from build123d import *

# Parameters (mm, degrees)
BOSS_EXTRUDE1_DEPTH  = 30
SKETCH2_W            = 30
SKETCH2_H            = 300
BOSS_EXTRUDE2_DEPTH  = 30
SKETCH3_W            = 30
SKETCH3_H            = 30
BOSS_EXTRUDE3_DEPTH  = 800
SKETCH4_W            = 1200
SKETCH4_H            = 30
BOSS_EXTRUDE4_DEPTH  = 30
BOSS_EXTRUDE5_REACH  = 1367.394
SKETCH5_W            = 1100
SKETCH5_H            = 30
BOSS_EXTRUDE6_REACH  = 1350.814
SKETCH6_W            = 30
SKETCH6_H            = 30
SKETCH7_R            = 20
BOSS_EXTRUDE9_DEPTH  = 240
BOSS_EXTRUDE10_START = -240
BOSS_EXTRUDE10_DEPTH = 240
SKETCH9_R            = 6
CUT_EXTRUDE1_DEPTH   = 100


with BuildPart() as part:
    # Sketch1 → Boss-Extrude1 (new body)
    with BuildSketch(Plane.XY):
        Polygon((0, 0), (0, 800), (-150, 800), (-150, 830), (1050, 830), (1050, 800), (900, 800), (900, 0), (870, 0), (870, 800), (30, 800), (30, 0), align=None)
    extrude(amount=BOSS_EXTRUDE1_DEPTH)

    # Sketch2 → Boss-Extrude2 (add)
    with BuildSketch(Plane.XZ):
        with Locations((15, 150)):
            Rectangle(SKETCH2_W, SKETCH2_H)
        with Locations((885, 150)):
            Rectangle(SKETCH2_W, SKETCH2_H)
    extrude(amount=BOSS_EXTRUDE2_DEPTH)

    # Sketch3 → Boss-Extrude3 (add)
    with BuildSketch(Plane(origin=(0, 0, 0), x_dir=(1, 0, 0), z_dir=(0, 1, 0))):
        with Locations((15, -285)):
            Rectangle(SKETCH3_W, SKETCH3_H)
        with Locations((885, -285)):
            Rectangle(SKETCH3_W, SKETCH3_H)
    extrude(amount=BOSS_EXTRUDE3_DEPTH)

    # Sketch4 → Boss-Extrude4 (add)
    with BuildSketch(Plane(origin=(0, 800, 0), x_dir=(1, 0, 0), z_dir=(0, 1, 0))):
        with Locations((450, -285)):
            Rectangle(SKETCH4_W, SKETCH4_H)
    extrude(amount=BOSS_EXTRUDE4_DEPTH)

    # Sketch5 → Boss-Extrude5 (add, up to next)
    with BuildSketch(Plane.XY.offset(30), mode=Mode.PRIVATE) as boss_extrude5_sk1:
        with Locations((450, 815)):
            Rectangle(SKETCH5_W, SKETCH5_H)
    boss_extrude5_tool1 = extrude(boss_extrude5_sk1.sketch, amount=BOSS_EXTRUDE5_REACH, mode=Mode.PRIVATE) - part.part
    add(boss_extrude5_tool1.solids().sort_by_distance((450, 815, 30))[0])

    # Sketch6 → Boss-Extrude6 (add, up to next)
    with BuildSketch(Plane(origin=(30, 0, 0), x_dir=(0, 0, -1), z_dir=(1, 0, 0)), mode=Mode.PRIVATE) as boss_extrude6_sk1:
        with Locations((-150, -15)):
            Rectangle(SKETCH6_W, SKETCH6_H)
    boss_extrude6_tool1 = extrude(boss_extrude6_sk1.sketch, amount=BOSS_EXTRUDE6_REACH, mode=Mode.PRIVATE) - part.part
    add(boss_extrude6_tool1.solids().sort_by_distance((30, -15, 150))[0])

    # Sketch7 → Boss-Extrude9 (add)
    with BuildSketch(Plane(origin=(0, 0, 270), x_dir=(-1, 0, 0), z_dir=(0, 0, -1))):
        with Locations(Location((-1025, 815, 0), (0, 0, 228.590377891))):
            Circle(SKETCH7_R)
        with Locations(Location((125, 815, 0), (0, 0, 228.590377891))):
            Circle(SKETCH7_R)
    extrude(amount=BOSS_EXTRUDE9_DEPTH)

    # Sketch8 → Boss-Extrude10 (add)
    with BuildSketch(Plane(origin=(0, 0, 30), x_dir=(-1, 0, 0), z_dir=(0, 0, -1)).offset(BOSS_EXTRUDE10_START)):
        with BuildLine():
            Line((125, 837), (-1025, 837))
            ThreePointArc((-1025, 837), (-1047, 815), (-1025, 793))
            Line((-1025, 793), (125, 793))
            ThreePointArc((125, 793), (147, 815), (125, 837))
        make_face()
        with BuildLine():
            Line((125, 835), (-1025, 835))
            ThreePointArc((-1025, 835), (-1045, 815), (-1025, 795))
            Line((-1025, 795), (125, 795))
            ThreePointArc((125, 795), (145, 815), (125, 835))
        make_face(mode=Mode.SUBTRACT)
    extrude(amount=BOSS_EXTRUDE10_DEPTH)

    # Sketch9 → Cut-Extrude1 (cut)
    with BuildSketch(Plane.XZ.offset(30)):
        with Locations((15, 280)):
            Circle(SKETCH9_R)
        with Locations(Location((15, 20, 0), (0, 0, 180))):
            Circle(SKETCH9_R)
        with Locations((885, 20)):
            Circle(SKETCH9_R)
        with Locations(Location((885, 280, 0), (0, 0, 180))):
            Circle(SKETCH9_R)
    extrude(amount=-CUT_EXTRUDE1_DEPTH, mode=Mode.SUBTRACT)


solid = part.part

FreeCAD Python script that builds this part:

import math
import FreeCAD as App
import Part
import Sketcher
from FreeCAD import Vector


def add_polygon(sketch, points):
    """Adds a closed chain of lines whose ends are joined by coincident constraints."""
    first, n = sketch.GeometryCount, len(points)
    for a, b in zip(points, points[1:] + points[:1]):
        sketch.addGeometry(Part.LineSegment(App.Vector(*a, 0), App.Vector(*b, 0)), False)
    for i in range(n):
        sketch.addConstraint(Sketcher.Constraint("Coincident", first + i, 2, first + (i + 1) % n, 1))

doc = App.newDocument("Part")
body = doc.addObject("PartDesign::Body", "Body")

# Sketch on XY plane
sketch1 = doc.addObject("Sketcher::SketchObject", "Sketch")
body.addObject(sketch1)
sketch1.AttachmentSupport = (doc.XY_Plane, [""])
sketch1.MapMode = "FlatFace"
add_polygon(sketch1, [(0, 800), (0, 0), (30, 0), (30, 800), (870, 800), (870, 0), (900, 0), (900, 800), (1050, 800), (1050, 830), (-150, 830), (-150, 800)])  # lines 0-11
sketch1.addConstraint([
    Sketcher.Constraint("Vertical", 0),
    Sketcher.Constraint("Horizontal", 1),
    Sketcher.Constraint("Vertical", 2),
    Sketcher.Constraint("Horizontal", 3),
    Sketcher.Constraint("Vertical", 4),
    Sketcher.Constraint("Horizontal", 5),
    Sketcher.Constraint("Vertical", 6),
    Sketcher.Constraint("Horizontal", 7),
    Sketcher.Constraint("Vertical", 8),
    Sketcher.Constraint("Horizontal", 9),
    Sketcher.Constraint("Vertical", 10),
    Sketcher.Constraint("Horizontal", 11),
    Sketcher.Constraint("Coincident", 0, 2, -1, 1),
    Sketcher.Constraint("PointOnObject", 4, 2, -1),
    Sketcher.Constraint("Horizontal", 3, 2, 6, 2),
    Sketcher.Constraint("Horizontal", 7, 2, 10, 2),
    Sketcher.Constraint("Equal", 1, 5),
    Sketcher.Constraint("Equal", 7, 11),
    Sketcher.Constraint("Equal", 5, 8),
    Sketcher.Constraint("DistanceX", 1, 1, 1, 2, 30.0),
    Sketcher.Constraint("DistanceX", 3, 1, 3, 2, 840.0),
    Sketcher.Constraint("DistanceX", 7, 1, 7, 2, 150.0),
    Sketcher.Constraint("DistanceY", 0, 2, 0, 1, 800.0),
])
pad1 = doc.addObject("PartDesign::Pad", "Pad")
body.addObject(pad1)
pad1.Profile = sketch1
pad1.Length = 30

# Sketch on XZ plane
sketch2 = doc.addObject("Sketcher::SketchObject", "Sketch001")
body.addObject(sketch2)
sketch2.AttachmentSupport = (doc.XZ_Plane, [""])
sketch2.MapMode = "FlatFace"
add_polygon(sketch2, [(0, 300), (0, 0), (30, 0), (30, 300)])  # lines 0-3
add_polygon(sketch2, [(870, 300), (870, 0), (900, 0), (900, 300)])  # lines 4-7
sketch2.addConstraint([
    Sketcher.Constraint("Vertical", 0),
    Sketcher.Constraint("Horizontal", 1),
    Sketcher.Constraint("Vertical", 2),
    Sketcher.Constraint("Horizontal", 3),
    Sketcher.Constraint("Vertical", 4),
    Sketcher.Constraint("Horizontal", 5),
    Sketcher.Constraint("Vertical", 6),
    Sketcher.Constraint("Horizontal", 7),
    Sketcher.Constraint("Coincident", 0, 2, -1, 1),
    Sketcher.Constraint("PointOnObject", 4, 2, -1),
    Sketcher.Constraint("Horizontal", 3, 2, 6, 2),
    Sketcher.Constraint("Equal", 3, 5),
    Sketcher.Constraint("DistanceX", 1, 1, 1, 2, 30.0),
    Sketcher.Constraint("DistanceY", 0, 2, 0, 1, 300.0),
    Sketcher.Constraint("DistanceX", -1, 1, 4, 2, 870.0),
])
pad2 = doc.addObject("PartDesign::Pad", "Pad001")
body.addObject(pad2)
pad2.Profile = sketch2
pad2.Length = 30

# Sketch on XZ plane
sketch3 = doc.addObject("Sketcher::SketchObject", "Sketch002")
body.addObject(sketch3)
sketch3.AttachmentSupport = (doc.XZ_Plane, [""])
sketch3.MapMode = "FlatFace"
add_polygon(sketch3, [(0, 270), (0, 300), (30, 300), (30, 270)])  # lines 0-3
add_polygon(sketch3, [(870, 270), (870, 300), (900, 300), (900, 270)])  # lines 4-7
sketch3.addConstraint([
    Sketcher.Constraint("Vertical", 0),
    Sketcher.Constraint("Horizontal", 1),
    Sketcher.Constraint("Vertical", 2),
    Sketcher.Constraint("Horizontal", 3),
    Sketcher.Constraint("Vertical", 4),
    Sketcher.Constraint("Horizontal", 5),
    Sketcher.Constraint("Vertical", 6),
    Sketcher.Constraint("Horizontal", 7),
    Sketcher.Constraint("PointOnObject", 0, 2, -2),
    Sketcher.Constraint("Horizontal", 1, 2, 4, 2),
    Sketcher.Constraint("Horizontal", 3, 2, 6, 2),
    Sketcher.Constraint("Equal", 3, 5),
    Sketcher.Constraint("Equal", 7, 0),
    Sketcher.Constraint("DistanceX", 1, 1, 1, 2, 30.0),
    Sketcher.Constraint("DistanceY", -1, 1, 0, 2, 300.0),
    Sketcher.Constraint("DistanceX", -1, 1, 4, 2, 870.0),
])
pad3 = doc.addObject("PartDesign::Pad", "Pad002")
body.addObject(pad3)
pad3.Profile = sketch3
pad3.Length = 800
pad3.Reversed = True

# Sketch on XZ plane
sketch4 = doc.addObject("Sketcher::SketchObject", "Sketch003")
body.addObject(sketch4)
sketch4.AttachmentSupport = (doc.XZ_Plane, [""])
sketch4.MapMode = "FlatFace"
sketch4.AttachmentOffset = App.Placement(Vector(0, 0, -800), App.Rotation())
add_polygon(sketch4, [(-150, 270), (-150, 300), (1050, 300), (1050, 270)])  # lines 0-3
sketch4.addConstraint([
    Sketcher.Constraint("Vertical", 0),
    Sketcher.Constraint("Horizontal", 1),
    Sketcher.Constraint("Vertical", 2),
    Sketcher.Constraint("Horizontal", 3),
    Sketcher.Constraint("DistanceX", 1, 1, 1, 2, 1200.0),
    Sketcher.Constraint("DistanceY", 0, 1, 0, 2, 30.0),
    Sketcher.Constraint("DistanceX", 0, 2, -1, 1, 150.0),
    Sketcher.Constraint("DistanceY", -1, 1, 0, 2, 300.0),
])
pad4 = doc.addObject("PartDesign::Pad", "Pad003")
body.addObject(pad4)
pad4.Profile = sketch4
pad4.Length = 30
pad4.Reversed = True

# Sketch on XY plane
sketch5 = doc.addObject("Sketcher::SketchObject", "Sketch004")
body.addObject(sketch5)
sketch5.AttachmentSupport = (doc.XY_Plane, [""])
sketch5.MapMode = "FlatFace"
sketch5.AttachmentOffset = App.Placement(Vector(0, 0, 30), App.Rotation())
add_polygon(sketch5, [(-100, 830), (-100, 800), (1000, 800), (1000, 830)])  # lines 0-3
sketch5.addConstraint([
    Sketcher.Constraint("Vertical", 0),
    Sketcher.Constraint("Horizontal", 1),
    Sketcher.Constraint("Vertical", 2),
    Sketcher.Constraint("Horizontal", 3),
    Sketcher.Constraint("DistanceX", 1, 1, 1, 2, 1100.0),
    Sketcher.Constraint("DistanceY", 0, 2, 0, 1, 30.0),
    Sketcher.Constraint("DistanceX", 0, 2, -1, 1, 100.0),
    Sketcher.Constraint("DistanceY", -1, 1, 0, 2, 800.0),
])
pad5 = doc.addObject("PartDesign::Pad", "Pad004")
body.addObject(pad5)
pad5.Profile = sketch5
pad5.Type = "UpToFirst"

# Sketch on YZ plane
sketch6 = doc.addObject("Sketcher::SketchObject", "Sketch005")
body.addObject(sketch6)
sketch6.AttachmentSupport = (doc.YZ_Plane, [""])
sketch6.MapMode = "FlatFace"
sketch6.AttachmentOffset = App.Placement(Vector(0, 0, 30), App.Rotation())
add_polygon(sketch6, [(0, 165), (-30, 165), (-30, 135), (0, 135)])  # lines 0-3
sketch6.addConstraint([
    Sketcher.Constraint("Horizontal", 0),
    Sketcher.Constraint("Vertical", 1),
    Sketcher.Constraint("Horizontal", 2),
    Sketcher.Constraint("Vertical", 3),
    Sketcher.Constraint("PointOnObject", 2, 2, -2),
    Sketcher.Constraint("Equal", 2, 1),
    Sketcher.Constraint("DistanceX", 0, 2, 0, 1, 30.0),
    Sketcher.Constraint("DistanceY", -1, 1, 0, 2, 165.0),
])
pad6 = doc.addObject("PartDesign::Pad", "Pad005")
body.addObject(pad6)
pad6.Profile = sketch6
pad6.Type = "UpToFirst"

# Sketch on XY plane
sketch7 = doc.addObject("Sketcher::SketchObject", "Sketch006")
body.addObject(sketch7)
sketch7.AttachmentSupport = (doc.XY_Plane, [""])
sketch7.MapMode = "FlatFace"
sketch7.AttachmentOffset = App.Placement(Vector(0, 0, 270), App.Rotation())
sketch7.addGeometry([
    Part.Circle(Vector(1025, 815, 0), Vector(0, 0, 1), 20),
    Part.Circle(Vector(-125, 815, 0), Vector(0, 0, 1), 20),
], False)
sketch7.addConstraint([
    Sketcher.Constraint("Equal", 0, 1),
    Sketcher.Constraint("Horizontal", 0, 3, 1, 3),
    Sketcher.Constraint("Diameter", 0, 40.0),
    Sketcher.Constraint("DistanceX", -1, 1, 0, 3, 1025.0),
    Sketcher.Constraint("DistanceY", -1, 1, 0, 3, 815.0),
    Sketcher.Constraint("DistanceX", 1, 3, -1, 1, 125.0),
])
pad7 = doc.addObject("PartDesign::Pad", "Pad006")
body.addObject(pad7)
pad7.Profile = sketch7
pad7.Length = 240
pad7.Reversed = True

# Sketch on XY plane
sketch8 = doc.addObject("Sketcher::SketchObject", "Sketch007")
body.addObject(sketch8)
sketch8.AttachmentSupport = (doc.XY_Plane, [""])
sketch8.MapMode = "FlatFace"
sketch8.AttachmentOffset = App.Placement(Vector(0, 0, 270), App.Rotation())
sketch8.addGeometry([
    Part.LineSegment(Vector(-125, 837, 0), Vector(1025, 837, 0)),  # 0
    Part.ArcOfCircle(Part.Circle(Vector(1025, 815, 0), Vector(0, 0, 1), 22), math.radians(-90), math.radians(90)),  # 1
    Part.LineSegment(Vector(1025, 793, 0), Vector(-125, 793, 0)),  # 2
    Part.ArcOfCircle(Part.Circle(Vector(-125, 815, 0), Vector(0, 0, 1), 22), math.radians(90), math.radians(270)),  # 3
    Part.LineSegment(Vector(1025, 835, 0), Vector(-125, 835, 0)),  # 4
    Part.ArcOfCircle(Part.Circle(Vector(-125, 815, 0), Vector(0, 0, 1), 20), math.radians(90), math.radians(270)),  # 5
    Part.LineSegment(Vector(-125, 795, 0), Vector(1025, 795, 0)),  # 6
    Part.ArcOfCircle(Part.Circle(Vector(1025, 815, 0), Vector(0, 0, 1), 20), math.radians(-90), math.radians(90)),  # 7
], False)
sketch8.addConstraint([
    Sketcher.Constraint("Tangent", 0, 2, 1, 2),
    Sketcher.Constraint("Tangent", 1, 1, 2, 1),
    Sketcher.Constraint("Tangent", 2, 2, 3, 2),
    Sketcher.Constraint("Tangent", 3, 1, 0, 1),
    Sketcher.Constraint("Tangent", 4, 2, 5, 1),
    Sketcher.Constraint("Tangent", 5, 2, 6, 1),
    Sketcher.Constraint("Tangent", 6, 2, 7, 1),
    Sketcher.Constraint("Tangent", 7, 2, 4, 1),
    Sketcher.Constraint("Horizontal", 0),
    Sketcher.Constraint("Horizontal", 2),
    Sketcher.Constraint("Horizontal", 4),
    Sketcher.Constraint("Horizontal", 6),
    Sketcher.Constraint("Coincident", 5, 3, 3, 3),
    Sketcher.Constraint("Vertical", 7, 3, 0, 2),
    Sketcher.Constraint("Radius", 1, 22.0),
    Sketcher.Constraint("Radius", 5, 20.0),
    Sketcher.Constraint("DistanceX", 0, 1, 0, 2, 1150.0),
    Sketcher.Constraint("DistanceX", -1, 1, 1, 3, 1025.0),
    Sketcher.Constraint("DistanceY", -1, 1, 1, 3, 815.0),
])
pad8 = doc.addObject("PartDesign::Pad", "Pad007")
body.addObject(pad8)
pad8.Profile = sketch8
pad8.Length = 240
pad8.Reversed = True

# Sketch on XZ plane
sketch9 = doc.addObject("Sketcher::SketchObject", "Sketch008")
body.addObject(sketch9)
sketch9.AttachmentSupport = (doc.XZ_Plane, [""])
sketch9.MapMode = "FlatFace"
sketch9.AttachmentOffset = App.Placement(Vector(0, 0, 30), App.Rotation())
sketch9.addGeometry([
    Part.Circle(Vector(15, 280, 0), Vector(0, 0, 1), 6),
    Part.Circle(Vector(15, 20, 0), Vector(0, 0, 1), 6),
    Part.Circle(Vector(885, 20, 0), Vector(0, 0, 1), 6),
    Part.Circle(Vector(885, 280, 0), Vector(0, 0, 1), 6),
], False)
sketch9.addConstraint([
    Sketcher.Constraint("Equal", 0, 1),
    Sketcher.Constraint("Equal", 1, 2),
    Sketcher.Constraint("Equal", 2, 3),
    Sketcher.Constraint("Horizontal", 1, 3, 2, 3),
    Sketcher.Constraint("Horizontal", 0, 3, 3, 3),
    Sketcher.Constraint("Vertical", 0, 3, 1, 3),
    Sketcher.Constraint("Vertical", 2, 3, 3, 3),
    Sketcher.Constraint("Diameter", 0, 12.0),
    Sketcher.Constraint("DistanceX", -1, 1, 0, 3, 15.0),
    Sketcher.Constraint("DistanceY", -1, 1, 0, 3, 280.0),
    Sketcher.Constraint("DistanceY", -1, 1, 1, 3, 20.0),
    Sketcher.Constraint("DistanceX", -1, 1, 2, 3, 885.0),
])
pocket1 = doc.addObject("PartDesign::Pocket", "Pocket")
body.addObject(pocket1)
pocket1.Profile = sketch9
pocket1.Length = 100

doc.recompute()
